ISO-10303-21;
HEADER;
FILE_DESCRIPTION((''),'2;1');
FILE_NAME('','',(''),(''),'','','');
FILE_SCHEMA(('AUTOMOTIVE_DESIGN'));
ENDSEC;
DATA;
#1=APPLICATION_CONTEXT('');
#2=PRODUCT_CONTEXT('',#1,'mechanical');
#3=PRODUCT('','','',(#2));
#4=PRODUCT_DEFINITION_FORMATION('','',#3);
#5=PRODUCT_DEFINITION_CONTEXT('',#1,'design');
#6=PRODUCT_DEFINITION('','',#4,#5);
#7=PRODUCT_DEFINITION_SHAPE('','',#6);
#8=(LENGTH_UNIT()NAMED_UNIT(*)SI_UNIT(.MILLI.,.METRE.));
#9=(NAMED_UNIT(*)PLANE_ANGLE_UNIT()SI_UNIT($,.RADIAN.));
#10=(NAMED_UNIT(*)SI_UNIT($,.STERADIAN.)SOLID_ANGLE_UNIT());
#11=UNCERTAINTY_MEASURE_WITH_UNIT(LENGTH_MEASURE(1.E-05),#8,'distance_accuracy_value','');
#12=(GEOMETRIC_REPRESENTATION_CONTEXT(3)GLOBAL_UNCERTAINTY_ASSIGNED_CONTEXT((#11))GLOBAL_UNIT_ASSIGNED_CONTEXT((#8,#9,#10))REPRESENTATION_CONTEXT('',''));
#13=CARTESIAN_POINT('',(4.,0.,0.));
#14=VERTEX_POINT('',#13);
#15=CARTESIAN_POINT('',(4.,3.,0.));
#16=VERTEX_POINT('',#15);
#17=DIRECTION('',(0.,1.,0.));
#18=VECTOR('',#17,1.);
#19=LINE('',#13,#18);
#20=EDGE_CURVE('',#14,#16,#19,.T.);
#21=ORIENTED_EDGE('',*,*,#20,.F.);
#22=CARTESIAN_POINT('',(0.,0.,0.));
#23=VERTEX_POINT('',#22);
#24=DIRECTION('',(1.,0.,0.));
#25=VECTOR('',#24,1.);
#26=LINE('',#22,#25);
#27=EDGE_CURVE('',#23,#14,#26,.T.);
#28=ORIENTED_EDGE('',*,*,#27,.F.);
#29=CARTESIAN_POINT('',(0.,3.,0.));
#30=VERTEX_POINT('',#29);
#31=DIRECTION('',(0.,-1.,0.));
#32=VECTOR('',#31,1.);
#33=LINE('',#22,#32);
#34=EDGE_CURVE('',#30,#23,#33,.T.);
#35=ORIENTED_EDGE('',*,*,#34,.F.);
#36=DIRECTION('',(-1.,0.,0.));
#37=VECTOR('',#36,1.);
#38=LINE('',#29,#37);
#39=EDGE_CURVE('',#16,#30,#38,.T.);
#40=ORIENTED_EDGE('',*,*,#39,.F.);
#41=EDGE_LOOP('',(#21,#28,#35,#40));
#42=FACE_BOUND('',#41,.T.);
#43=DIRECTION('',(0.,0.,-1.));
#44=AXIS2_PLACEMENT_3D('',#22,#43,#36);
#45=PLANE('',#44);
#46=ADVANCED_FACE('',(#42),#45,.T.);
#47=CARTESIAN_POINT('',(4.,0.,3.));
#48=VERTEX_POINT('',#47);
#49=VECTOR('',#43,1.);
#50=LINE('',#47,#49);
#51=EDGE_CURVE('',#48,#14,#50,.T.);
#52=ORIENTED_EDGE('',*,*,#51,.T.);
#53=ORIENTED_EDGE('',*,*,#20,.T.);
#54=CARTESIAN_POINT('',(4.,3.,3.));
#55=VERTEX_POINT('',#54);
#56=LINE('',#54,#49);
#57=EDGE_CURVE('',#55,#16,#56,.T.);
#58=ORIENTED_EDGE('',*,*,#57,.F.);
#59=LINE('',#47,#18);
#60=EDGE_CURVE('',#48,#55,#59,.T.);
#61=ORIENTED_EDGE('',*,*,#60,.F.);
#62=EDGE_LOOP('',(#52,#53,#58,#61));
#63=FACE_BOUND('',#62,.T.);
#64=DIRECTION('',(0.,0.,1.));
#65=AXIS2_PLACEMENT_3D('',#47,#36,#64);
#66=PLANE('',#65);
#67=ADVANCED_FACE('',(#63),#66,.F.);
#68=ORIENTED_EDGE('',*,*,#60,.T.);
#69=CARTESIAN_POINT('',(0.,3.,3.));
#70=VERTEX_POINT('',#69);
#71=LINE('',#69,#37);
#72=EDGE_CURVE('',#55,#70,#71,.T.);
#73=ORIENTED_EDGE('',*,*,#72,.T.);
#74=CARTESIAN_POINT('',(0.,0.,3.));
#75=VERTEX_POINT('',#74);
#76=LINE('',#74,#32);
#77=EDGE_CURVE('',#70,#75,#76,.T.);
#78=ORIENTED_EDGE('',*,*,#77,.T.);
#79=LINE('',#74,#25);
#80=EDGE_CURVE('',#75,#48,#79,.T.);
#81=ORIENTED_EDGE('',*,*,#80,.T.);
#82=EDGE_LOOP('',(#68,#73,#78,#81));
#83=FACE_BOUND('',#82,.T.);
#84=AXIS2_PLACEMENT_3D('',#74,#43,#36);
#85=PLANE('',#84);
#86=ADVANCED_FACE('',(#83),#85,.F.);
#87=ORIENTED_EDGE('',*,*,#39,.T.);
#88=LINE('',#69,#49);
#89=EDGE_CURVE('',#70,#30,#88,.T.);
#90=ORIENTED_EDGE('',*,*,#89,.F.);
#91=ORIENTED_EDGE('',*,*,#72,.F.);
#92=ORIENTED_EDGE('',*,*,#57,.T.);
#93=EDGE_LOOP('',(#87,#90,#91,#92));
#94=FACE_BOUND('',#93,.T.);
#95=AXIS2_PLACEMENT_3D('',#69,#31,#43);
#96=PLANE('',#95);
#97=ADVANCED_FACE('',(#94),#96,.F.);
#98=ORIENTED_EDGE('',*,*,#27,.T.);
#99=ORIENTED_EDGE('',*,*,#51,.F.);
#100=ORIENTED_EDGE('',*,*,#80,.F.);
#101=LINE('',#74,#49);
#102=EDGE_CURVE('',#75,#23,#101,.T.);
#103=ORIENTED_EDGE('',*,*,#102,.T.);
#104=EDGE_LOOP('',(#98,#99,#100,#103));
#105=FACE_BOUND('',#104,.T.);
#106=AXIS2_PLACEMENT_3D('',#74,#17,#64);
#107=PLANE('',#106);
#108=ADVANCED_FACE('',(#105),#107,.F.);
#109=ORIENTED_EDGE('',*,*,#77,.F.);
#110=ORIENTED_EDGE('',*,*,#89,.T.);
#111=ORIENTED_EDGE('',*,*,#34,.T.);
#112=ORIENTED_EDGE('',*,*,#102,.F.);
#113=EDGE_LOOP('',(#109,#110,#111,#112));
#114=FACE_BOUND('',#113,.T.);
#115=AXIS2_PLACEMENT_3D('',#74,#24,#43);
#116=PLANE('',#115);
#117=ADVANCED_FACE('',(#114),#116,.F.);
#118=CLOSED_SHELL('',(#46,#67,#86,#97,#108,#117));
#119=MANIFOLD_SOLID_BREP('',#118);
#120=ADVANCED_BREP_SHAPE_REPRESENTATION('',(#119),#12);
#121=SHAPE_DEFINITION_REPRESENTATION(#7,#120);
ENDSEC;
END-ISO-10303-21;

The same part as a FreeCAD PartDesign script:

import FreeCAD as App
import Part
import Sketcher


def add_polygon(sketch, points):
    """Adds a closed chain of lines whose ends are joined by coincident constraints."""
    first, n = sketch.GeometryCount, len(points)
    for a, b in zip(points, points[1:] + points[:1]):
        sketch.addGeometry(Part.LineSegment(App.Vector(*a, 0), App.Vector(*b, 0)), False)
    for i in range(n):
        sketch.addConstraint(Sketcher.Constraint("Coincident", first + i, 2, first + (i + 1) % n, 1))

doc = App.newDocument("Part")
body = doc.addObject("PartDesign::Body", "Body")

# Sketch on XY plane
sketch1 = body.newObject("Sketcher::SketchObject", "Sketch")
sketch1.AttachmentSupport = (doc.getObject("XY_Plane"), [""])
sketch1.MapMode = "FlatFace"
add_polygon(sketch1, [(0, 3), (0, 0), (4, 0), (4, 3)])  # lines 0-3
sketch1.addConstraint(Sketcher.Constraint("Vertical", 0))
sketch1.addConstraint(Sketcher.Constraint("Horizontal", 1))
sketch1.addConstraint(Sketcher.Constraint("Vertical", 2))
sketch1.addConstraint(Sketcher.Constraint("Horizontal", 3))
sketch1.addConstraint(Sketcher.Constraint("Coincident", 0, 2, -1, 1))
sketch1.addConstraint(Sketcher.Constraint("DistanceX", 1, 1, 1, 2, 4.0))
sketch1.addConstraint(Sketcher.Constraint("DistanceY", 0, 2, 0, 1, 3.0))
pad1 = body.newObject("PartDesign::Pad", "Pad")
pad1.Profile = sketch1
pad1.Length = 3

doc.recompute()
